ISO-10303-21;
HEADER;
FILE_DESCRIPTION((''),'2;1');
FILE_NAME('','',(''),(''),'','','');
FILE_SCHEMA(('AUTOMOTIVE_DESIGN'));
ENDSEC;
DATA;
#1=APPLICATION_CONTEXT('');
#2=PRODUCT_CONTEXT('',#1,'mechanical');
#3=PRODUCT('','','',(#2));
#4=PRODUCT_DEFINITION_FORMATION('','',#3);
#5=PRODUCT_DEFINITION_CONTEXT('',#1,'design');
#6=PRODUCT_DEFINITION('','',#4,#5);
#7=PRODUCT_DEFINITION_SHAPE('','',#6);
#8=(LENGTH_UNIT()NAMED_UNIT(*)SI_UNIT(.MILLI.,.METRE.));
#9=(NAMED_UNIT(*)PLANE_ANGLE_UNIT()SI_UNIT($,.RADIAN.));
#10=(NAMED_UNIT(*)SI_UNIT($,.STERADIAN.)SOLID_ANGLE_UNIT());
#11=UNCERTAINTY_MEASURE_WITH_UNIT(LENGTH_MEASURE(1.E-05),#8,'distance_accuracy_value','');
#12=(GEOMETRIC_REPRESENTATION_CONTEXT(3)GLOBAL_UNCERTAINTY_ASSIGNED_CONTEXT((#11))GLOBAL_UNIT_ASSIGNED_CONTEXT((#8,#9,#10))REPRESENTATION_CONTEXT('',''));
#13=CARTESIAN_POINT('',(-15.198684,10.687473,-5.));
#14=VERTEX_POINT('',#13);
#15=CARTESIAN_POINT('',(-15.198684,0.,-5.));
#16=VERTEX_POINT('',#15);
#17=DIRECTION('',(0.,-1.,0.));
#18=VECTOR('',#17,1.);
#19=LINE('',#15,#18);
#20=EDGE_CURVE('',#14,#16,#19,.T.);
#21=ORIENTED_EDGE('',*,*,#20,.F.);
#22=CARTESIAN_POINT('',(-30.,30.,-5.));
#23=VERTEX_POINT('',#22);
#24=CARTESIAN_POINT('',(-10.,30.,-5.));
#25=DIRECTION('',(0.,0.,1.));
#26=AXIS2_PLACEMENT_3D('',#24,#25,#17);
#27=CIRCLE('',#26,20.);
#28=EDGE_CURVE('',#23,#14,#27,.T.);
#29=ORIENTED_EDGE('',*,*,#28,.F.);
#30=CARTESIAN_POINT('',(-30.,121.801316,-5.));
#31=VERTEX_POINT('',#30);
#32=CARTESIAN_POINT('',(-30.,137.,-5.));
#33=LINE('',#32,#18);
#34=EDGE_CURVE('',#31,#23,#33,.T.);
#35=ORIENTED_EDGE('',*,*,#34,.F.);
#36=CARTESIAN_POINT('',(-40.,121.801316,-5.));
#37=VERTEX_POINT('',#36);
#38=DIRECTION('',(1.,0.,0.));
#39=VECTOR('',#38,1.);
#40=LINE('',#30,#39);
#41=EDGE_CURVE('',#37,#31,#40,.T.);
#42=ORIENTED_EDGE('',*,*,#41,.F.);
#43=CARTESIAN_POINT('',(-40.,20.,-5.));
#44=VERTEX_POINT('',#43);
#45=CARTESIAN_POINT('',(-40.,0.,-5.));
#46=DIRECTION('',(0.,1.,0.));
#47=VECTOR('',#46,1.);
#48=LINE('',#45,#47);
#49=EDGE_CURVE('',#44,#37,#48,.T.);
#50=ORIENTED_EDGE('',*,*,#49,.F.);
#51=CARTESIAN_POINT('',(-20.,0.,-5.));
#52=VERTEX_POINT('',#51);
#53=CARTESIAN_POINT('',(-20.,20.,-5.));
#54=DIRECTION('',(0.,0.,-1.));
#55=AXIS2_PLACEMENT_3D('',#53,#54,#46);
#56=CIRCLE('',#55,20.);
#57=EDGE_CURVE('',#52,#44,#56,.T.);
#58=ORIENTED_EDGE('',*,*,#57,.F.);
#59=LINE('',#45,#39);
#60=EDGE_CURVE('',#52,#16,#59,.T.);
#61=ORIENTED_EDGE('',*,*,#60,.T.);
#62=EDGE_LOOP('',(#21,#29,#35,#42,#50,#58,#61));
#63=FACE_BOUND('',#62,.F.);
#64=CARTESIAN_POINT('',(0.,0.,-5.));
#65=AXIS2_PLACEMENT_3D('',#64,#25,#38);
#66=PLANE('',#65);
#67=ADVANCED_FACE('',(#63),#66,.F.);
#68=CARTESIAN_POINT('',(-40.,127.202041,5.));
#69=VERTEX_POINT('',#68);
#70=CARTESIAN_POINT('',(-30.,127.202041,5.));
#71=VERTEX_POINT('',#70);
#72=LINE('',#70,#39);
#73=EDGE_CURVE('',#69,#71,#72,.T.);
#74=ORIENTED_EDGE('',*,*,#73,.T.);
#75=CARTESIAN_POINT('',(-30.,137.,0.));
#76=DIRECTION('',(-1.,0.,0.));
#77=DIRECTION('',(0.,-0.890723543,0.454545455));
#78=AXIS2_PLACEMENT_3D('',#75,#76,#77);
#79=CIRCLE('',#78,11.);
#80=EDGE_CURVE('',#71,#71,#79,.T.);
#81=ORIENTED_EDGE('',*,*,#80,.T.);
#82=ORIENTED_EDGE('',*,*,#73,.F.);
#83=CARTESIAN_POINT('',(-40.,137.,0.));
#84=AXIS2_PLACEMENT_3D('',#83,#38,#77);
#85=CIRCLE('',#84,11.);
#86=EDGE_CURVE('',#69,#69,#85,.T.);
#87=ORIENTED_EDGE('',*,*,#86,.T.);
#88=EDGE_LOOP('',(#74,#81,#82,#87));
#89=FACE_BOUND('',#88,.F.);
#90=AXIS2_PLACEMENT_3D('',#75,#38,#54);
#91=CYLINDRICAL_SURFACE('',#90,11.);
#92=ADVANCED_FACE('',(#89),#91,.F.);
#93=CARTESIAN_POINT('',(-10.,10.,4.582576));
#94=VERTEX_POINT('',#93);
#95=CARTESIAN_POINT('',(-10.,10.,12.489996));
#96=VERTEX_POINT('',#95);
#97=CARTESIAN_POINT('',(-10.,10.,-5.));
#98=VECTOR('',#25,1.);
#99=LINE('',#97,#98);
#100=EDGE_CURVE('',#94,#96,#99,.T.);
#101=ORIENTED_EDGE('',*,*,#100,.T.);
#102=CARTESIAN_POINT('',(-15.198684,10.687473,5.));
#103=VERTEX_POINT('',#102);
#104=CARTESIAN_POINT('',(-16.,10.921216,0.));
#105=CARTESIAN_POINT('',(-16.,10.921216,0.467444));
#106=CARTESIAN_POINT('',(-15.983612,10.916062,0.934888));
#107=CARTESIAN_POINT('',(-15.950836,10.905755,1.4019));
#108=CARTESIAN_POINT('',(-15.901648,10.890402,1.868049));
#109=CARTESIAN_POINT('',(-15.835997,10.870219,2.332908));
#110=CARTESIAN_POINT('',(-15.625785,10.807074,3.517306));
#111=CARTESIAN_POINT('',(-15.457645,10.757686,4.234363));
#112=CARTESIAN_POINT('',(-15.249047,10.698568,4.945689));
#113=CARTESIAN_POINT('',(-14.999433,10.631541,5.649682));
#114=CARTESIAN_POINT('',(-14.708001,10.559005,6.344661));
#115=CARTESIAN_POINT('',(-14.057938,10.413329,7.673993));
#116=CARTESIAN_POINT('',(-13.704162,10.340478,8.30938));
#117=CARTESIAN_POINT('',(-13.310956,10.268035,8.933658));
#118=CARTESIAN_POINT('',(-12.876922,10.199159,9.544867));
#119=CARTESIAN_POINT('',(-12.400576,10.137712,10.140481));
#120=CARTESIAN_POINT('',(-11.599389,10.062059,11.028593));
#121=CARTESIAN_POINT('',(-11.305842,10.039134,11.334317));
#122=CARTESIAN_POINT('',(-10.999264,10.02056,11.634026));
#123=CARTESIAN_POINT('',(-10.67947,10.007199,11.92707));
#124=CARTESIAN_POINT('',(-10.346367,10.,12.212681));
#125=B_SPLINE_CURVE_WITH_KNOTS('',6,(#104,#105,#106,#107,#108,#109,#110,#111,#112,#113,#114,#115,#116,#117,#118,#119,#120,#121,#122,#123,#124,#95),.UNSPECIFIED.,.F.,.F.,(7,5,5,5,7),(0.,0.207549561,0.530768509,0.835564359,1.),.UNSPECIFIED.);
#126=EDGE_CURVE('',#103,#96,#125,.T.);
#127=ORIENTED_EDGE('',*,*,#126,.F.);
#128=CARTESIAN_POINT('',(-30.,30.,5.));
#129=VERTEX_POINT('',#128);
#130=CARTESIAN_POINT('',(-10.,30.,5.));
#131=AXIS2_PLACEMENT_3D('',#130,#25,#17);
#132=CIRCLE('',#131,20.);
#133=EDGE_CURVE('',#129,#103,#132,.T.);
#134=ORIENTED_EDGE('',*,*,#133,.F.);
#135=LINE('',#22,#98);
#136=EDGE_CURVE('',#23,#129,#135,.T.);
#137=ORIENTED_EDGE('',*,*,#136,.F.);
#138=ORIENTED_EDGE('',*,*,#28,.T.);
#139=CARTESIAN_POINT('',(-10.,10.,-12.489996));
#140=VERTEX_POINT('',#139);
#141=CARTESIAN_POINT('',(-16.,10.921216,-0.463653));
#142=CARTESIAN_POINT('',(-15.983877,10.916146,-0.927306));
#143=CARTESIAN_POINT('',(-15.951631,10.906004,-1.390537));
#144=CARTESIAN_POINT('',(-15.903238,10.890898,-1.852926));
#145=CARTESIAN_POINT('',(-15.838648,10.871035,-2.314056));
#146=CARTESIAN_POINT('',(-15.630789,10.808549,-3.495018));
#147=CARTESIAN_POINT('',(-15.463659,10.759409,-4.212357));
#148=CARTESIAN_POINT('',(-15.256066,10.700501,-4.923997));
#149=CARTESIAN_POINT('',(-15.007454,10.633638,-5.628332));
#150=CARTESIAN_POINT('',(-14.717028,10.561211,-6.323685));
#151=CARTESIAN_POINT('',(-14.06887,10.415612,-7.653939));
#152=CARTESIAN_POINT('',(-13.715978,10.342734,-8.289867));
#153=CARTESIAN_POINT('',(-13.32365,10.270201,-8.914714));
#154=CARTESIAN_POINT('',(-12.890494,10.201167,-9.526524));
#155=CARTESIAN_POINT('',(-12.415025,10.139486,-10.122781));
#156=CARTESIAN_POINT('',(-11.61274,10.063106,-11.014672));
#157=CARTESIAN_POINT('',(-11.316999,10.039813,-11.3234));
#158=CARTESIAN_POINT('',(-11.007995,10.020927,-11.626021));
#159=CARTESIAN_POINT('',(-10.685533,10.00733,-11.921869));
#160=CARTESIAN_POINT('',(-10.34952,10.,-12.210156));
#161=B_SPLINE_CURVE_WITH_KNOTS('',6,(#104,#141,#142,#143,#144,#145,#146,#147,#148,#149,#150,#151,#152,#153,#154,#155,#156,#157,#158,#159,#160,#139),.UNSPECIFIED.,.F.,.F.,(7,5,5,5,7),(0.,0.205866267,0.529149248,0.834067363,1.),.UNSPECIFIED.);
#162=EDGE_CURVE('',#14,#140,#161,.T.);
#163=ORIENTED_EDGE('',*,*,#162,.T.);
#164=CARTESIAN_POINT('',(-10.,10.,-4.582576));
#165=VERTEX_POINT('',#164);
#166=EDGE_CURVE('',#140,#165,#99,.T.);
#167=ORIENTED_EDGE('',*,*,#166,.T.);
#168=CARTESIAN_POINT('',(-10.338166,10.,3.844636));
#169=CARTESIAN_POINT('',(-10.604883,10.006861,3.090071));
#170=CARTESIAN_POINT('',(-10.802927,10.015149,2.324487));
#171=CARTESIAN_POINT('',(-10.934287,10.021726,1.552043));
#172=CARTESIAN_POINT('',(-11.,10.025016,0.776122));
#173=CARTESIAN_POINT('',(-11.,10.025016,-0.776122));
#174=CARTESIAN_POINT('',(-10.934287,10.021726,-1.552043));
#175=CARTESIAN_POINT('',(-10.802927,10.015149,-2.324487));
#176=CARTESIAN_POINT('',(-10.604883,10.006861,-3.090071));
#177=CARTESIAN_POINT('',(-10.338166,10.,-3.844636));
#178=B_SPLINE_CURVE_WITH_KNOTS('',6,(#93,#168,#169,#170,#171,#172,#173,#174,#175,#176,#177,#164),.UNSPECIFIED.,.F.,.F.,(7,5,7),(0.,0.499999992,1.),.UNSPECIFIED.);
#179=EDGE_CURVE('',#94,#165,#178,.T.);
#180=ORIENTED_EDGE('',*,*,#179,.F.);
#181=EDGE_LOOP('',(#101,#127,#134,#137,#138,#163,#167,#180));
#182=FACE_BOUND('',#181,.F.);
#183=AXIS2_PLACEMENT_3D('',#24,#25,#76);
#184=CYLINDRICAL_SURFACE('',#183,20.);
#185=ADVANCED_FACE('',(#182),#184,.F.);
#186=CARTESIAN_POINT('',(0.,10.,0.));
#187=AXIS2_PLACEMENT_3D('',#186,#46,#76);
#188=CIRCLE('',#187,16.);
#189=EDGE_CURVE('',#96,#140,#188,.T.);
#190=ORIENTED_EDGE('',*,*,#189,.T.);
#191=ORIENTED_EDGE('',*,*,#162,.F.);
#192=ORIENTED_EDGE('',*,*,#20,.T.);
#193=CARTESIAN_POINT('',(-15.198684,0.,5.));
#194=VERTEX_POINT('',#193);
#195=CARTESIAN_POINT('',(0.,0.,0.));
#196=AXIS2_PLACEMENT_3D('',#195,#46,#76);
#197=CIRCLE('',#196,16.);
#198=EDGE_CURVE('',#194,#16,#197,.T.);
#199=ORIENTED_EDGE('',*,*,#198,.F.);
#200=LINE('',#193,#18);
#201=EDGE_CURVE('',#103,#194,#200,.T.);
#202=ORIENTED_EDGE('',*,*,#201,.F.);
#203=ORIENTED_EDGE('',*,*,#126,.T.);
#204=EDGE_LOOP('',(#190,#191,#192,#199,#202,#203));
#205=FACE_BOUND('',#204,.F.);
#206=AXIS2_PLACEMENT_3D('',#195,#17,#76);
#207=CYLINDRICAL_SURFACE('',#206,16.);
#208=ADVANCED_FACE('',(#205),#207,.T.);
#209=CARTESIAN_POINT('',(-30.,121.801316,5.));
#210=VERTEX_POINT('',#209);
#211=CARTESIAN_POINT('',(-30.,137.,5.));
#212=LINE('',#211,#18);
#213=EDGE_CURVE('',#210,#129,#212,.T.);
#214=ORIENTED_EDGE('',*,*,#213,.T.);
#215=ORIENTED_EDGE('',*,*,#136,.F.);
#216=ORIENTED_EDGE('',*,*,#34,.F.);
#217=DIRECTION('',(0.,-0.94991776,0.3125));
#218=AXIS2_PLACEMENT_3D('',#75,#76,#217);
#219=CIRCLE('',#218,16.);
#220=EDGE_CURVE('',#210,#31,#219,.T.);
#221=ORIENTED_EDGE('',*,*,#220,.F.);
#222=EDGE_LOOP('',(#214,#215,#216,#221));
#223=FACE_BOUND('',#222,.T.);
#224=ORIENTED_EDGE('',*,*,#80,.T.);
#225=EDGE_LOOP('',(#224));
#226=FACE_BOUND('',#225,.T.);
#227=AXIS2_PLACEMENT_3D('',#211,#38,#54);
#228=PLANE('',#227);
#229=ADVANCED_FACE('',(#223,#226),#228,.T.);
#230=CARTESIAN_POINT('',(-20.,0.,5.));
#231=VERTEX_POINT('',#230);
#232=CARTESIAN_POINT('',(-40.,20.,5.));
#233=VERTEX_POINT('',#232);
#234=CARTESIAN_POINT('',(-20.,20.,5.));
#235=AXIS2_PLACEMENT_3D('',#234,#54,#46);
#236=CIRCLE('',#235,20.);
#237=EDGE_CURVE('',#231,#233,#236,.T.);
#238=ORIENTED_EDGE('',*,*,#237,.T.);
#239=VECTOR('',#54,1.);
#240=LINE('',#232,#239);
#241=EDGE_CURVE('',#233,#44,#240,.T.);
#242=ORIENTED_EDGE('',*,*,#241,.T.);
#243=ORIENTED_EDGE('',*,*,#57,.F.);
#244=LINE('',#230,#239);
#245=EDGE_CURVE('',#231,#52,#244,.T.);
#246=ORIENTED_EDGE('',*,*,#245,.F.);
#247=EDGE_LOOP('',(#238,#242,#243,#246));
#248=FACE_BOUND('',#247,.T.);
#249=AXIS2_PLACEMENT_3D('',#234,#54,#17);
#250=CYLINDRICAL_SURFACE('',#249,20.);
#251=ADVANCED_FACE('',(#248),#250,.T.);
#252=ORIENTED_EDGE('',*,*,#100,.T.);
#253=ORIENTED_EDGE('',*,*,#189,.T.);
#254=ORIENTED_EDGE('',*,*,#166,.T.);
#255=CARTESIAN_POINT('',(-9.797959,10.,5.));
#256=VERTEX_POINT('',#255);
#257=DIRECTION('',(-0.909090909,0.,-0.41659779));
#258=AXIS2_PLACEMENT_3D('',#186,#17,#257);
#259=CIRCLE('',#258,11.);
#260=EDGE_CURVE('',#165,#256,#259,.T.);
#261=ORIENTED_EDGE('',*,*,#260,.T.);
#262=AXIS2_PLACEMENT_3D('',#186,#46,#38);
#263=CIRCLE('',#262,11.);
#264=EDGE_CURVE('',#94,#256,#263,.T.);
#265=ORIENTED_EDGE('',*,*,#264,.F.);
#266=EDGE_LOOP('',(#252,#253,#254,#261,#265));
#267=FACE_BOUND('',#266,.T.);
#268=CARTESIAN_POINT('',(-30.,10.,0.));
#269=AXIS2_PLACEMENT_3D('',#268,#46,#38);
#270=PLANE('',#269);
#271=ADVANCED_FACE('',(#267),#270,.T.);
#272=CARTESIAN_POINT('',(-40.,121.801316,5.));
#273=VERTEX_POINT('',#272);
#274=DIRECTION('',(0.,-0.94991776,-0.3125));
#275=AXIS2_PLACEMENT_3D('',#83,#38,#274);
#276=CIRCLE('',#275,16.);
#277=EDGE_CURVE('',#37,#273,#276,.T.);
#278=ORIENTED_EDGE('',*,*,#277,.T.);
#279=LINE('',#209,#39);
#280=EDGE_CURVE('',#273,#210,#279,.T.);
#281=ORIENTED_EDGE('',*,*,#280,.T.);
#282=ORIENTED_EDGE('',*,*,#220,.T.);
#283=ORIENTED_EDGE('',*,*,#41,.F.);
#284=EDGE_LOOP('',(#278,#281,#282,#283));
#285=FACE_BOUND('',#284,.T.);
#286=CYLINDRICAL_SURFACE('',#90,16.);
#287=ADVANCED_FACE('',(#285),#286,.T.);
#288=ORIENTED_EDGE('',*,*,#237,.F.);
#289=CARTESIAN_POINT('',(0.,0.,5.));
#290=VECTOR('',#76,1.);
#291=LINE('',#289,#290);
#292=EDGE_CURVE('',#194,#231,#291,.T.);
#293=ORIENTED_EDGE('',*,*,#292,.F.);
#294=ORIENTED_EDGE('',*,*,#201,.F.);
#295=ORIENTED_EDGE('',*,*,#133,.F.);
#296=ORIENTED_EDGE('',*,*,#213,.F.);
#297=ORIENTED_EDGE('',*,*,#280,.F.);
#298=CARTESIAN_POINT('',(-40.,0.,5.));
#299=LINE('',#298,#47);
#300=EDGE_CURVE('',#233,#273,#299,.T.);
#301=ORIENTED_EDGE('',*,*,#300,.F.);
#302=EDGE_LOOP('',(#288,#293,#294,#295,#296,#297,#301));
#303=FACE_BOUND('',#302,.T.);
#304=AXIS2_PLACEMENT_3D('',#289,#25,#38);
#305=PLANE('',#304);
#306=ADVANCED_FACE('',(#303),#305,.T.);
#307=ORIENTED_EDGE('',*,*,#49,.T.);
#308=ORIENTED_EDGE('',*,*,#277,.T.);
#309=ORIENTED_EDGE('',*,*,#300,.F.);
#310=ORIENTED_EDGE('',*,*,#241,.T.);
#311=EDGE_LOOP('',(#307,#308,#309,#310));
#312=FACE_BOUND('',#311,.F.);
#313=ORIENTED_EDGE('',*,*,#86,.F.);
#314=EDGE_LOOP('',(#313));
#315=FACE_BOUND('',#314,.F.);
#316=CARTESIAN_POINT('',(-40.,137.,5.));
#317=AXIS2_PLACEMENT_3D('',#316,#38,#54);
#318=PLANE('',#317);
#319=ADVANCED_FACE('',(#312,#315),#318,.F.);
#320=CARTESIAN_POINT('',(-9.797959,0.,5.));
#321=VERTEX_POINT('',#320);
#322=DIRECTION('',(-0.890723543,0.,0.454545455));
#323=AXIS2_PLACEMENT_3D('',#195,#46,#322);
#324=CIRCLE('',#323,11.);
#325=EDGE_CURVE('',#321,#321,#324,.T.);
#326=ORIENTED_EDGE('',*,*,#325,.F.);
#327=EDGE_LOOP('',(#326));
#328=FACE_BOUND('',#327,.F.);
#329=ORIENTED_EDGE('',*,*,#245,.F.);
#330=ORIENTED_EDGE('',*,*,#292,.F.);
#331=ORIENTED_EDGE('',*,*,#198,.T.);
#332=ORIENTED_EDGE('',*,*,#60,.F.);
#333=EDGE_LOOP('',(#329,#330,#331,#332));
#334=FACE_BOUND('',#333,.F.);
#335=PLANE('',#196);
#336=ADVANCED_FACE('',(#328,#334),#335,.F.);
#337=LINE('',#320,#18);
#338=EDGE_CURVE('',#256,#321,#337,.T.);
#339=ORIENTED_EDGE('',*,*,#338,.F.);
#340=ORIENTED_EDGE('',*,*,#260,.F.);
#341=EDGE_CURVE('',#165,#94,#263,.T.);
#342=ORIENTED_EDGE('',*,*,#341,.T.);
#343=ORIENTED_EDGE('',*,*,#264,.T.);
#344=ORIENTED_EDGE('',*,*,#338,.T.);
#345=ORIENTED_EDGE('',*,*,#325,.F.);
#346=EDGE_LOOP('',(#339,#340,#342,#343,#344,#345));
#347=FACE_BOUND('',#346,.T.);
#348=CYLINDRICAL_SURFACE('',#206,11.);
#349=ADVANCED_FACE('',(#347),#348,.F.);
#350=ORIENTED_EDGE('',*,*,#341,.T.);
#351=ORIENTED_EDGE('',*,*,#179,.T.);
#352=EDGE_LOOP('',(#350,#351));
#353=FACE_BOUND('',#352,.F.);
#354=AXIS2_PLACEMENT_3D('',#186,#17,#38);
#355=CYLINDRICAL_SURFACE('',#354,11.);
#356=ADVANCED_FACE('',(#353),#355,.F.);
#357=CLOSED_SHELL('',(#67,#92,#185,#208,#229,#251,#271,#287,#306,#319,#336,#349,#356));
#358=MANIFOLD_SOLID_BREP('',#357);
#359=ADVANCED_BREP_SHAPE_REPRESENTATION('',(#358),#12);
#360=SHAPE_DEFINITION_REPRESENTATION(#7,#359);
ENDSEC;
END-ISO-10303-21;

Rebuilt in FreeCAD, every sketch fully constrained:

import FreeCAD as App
import Part
import Sketcher

V = App.Vector


def edges_at(feature, points):
    """Names of the edges that pass closest to the given points."""
    edges = feature.Shape.Edges
    near = lambda p: min(range(len(edges)), key=lambda i: edges[i].distToShape(Part.Vertex(*p))[0])
    return sorted({f"Edge{near(p) + 1}" for p in points})


def add_polygon(sketch, points):
    """Adds a closed chain of lines whose ends are joined by coincident constraints."""
    first, n = sketch.GeometryCount, len(points)
    for a, b in zip(points, points[1:] + points[:1]):
        sketch.addGeometry(Part.LineSegment(App.Vector(*a, 0), App.Vector(*b, 0)), False)
    for i in range(n):
        sketch.addConstraint(Sketcher.Constraint("Coincident", first + i, 2, first + (i + 1) % n, 1))

doc = App.newDocument("Part")
params = doc.addObject("Spreadsheet::Sheet", "Params")
for row, (alias, value) in enumerate([
    ("sketch1_diameter", "22 mm"),
    ("sketch1_diameter2", "32 mm"),
    ("pad1_length", "10 mm"),
    ("sketch2_width", "30 mm"),
    ("sketch2_width2", "10 mm"),
    ("sketch2_height", "137 mm"),
    ("pad2_length", "10 mm"),
    ("fillet_radius", "20 mm"),
    ("sketch3_diameter", "32 mm"),
    ("sketch3_diameter2", "22 mm"),
    ("pad3_length", "10 mm"),
    ("sketch4_diameter", "22 mm"),
    ("pocket1_length", "10 mm"),
    ("sketch5_diameter", "22 mm"),
    ("pocket2_length", "10 mm"),
    ("sketch6_diameter", "22 mm"),
    ("pocket3_length", "10 mm"),
], start=1):
    params.set(f"A{row}", alias)
    params.set(f"B{row}", "=" + value)
    params.setAlias(f"B{row}", alias)

body = doc.addObject("PartDesign::Body", "Body")

# Sketch on XZ plane
sketch1 = doc.addObject("Sketcher::SketchObject", "Sketch")
body.addObject(sketch1)
sketch1.AttachmentSupport = (doc.XZ_Plane, [""])
sketch1.MapMode = "FlatFace"
sketch1.addGeometry([
    Part.Circle(V(0, 0, 0), V(0, 0, 1), 16),
    Part.Circle(V(0, 0, 0), V(0, 0, 1), 11),
], False)
sketch1.addConstraint([
    Sketcher.Constraint("Coincident", 0, 3, -1, 1),
    Sketcher.Constraint("Coincident", 1, 3, -1, 1),
    Sketcher.Constraint("Diameter", 1, 22.0),
    Sketcher.Constraint("Diameter", 0, 32.0),
])
sketch1.setExpression("Constraints[2]", "Params.sketch1_diameter")
sketch1.setExpression("Constraints[3]", "Params.sketch1_diameter2")
pad1 = doc.addObject("PartDesign::Pad", "Pad")
body.addObject(pad1)
pad1.Profile = sketch1
pad1.setExpression("Length", "Params.pad1_length")
pad1.Reversed = True

# Sketch on XY plane
sketch2 = doc.addObject("Sketcher::SketchObject", "Sketch001")
body.addObject(sketch2)
sketch2.AttachmentSupport = (doc.XY_Plane, [""])
sketch2.MapMode = "FlatFace"
add_polygon(sketch2, [(0, 0), (0, 10), (-30, 10), (-30, 137), (-40, 137), (-40, 0)])  # lines 0-5
sketch2.addConstraint([
    Sketcher.Constraint("Vertical", 0),
    Sketcher.Constraint("Horizontal", 1),
    Sketcher.Constraint("Vertical", 2),
    Sketcher.Constraint("Horizontal", 3),
    Sketcher.Constraint("Vertical", 4),
    Sketcher.Constraint("Horizontal", 5),
    Sketcher.Constraint("Coincident", 5, 2, -1, 1),
    Sketcher.Constraint("Equal", 3, 0),
    Sketcher.Constraint("DistanceX", 1, 2, 1, 1, 30.0),
    Sketcher.Constraint("DistanceX", 3, 2, 3, 1, 10.0),
    Sketcher.Constraint("DistanceY", 4, 2, 4, 1, 137.0),
])
sketch2.setExpression("Constraints[14]", "Params.sketch2_width")
sketch2.setExpression("Constraints[15]", "Params.sketch2_width2")
sketch2.setExpression("Constraints[16]", "Params.sketch2_height")
pad2 = doc.addObject("PartDesign::Pad", "Pad001")
body.addObject(pad2)
pad2.Profile = sketch2
pad2.setExpression("Length", "Params.pad2_length")
pad2.Midplane = True
doc.recompute()

fillet = doc.addObject("PartDesign::Fillet", "Fillet")
body.addObject(fillet)
fillet.Base = (pad2, edges_at(pad2, [(-40, 0, 0), (-30, 10, 0)]))
fillet.setExpression("Radius", "Params.fillet_radius")

# Sketch on YZ plane
sketch3 = doc.addObject("Sketcher::SketchObject", "Sketch002")
body.addObject(sketch3)
sketch3.AttachmentSupport = (doc.YZ_Plane, [""])
sketch3.MapMode = "FlatFace"
sketch3.AttachmentOffset = App.Placement(V(0, 0, -30), App.Rotation())
sketch3.addGeometry([
    Part.Circle(V(137, 0, 0), V(0, 0, 1), 16),
    Part.Circle(V(137, 0, 0), V(0, 0, 1), 11),
], False)
sketch3.addConstraint([
    Sketcher.Constraint("Coincident", 1, 3, 0, 3),
    Sketcher.Constraint("PointOnObject", 0, 3, -1),
    Sketcher.Constraint("Diameter", 0, 32.0),
    Sketcher.Constraint("Diameter", 1, 22.0),
    Sketcher.Constraint("DistanceX", -1, 1, 0, 3, 137.0),
])
sketch3.setExpression("Constraints[2]", "Params.sketch3_diameter")
sketch3.setExpression("Constraints[3]", "Params.sketch3_diameter2")
pad3 = doc.addObject("PartDesign::Pad", "Pad002")
body.addObject(pad3)
pad3.Profile = sketch3
pad3.setExpression("Length", "Params.pad3_length")
pad3.Reversed = True

# Sketch on XZ plane
sketch4 = doc.addObject("Sketcher::SketchObject", "Sketch003")
body.addObject(sketch4)
sketch4.AttachmentSupport = (doc.XZ_Plane, [""])
sketch4.MapMode = "FlatFace"
sketch4.AttachmentOffset = App.Placement(V(0, 0, -10), App.Rotation())
sketch4.addGeometry(Part.Circle(V(0, 0, 0), V(0, 0, 1), 11), False)
sketch4.addConstraint([
    Sketcher.Constraint("Coincident", 0, 3, -1, 1),
    Sketcher.Constraint("Diameter", 0, 22.0),
])
sketch4.setExpression("Constraints[1]", "Params.sketch4_diameter")
pocket1 = doc.addObject("PartDesign::Pocket", "Pocket")
body.addObject(pocket1)
pocket1.Profile = sketch4
pocket1.setExpression("Length", "Params.pocket1_length")
pocket1.Reversed = True

# Sketch on YZ plane
sketch5 = doc.addObject("Sketcher::SketchObject", "Sketch004")
body.addObject(sketch5)
sketch5.AttachmentSupport = (doc.YZ_Plane, [""])
sketch5.MapMode = "FlatFace"
sketch5.AttachmentOffset = App.Placement(V(0, 0, -30), App.Rotation())
sketch5.addGeometry(Part.Circle(V(137, 0, 0), V(0, 0, 1), 11), False)
sketch5.addConstraint([
    Sketcher.Constraint("PointOnObject", 0, 3, -1),
    Sketcher.Constraint("Diameter", 0, 22.0),
    Sketcher.Constraint("DistanceX", -1, 1, 0, 3, 137.0),
])
sketch5.setExpression("Constraints[1]", "Params.sketch5_diameter")
pocket2 = doc.addObject("PartDesign::Pocket", "Pocket001")
body.addObject(pocket2)
pocket2.Profile = sketch5
pocket2.setExpression("Length", "Params.pocket2_length")

# Sketch on XZ plane
sketch6 = doc.addObject("Sketcher::SketchObject", "Sketch005")
body.addObject(sketch6)
sketch6.AttachmentSupport = (doc.XZ_Plane, [""])
sketch6.MapMode = "FlatFace"
sketch6.AttachmentOffset = App.Placement(V(0, 0, -10), App.Rotation())
sketch6.addGeometry(Part.Circle(V(0, 0, 0), V(0, 0, 1), 11), False)
sketch6.addConstraint([
    Sketcher.Constraint("Coincident", 0, 3, -1, 1),
    Sketcher.Constraint("Diameter", 0, 22.0),
])
sketch6.setExpression("Constraints[1]", "Params.sketch6_diameter")
pocket3 = doc.addObject("PartDesign::Pocket", "Pocket002")
body.addObject(pocket3)
pocket3.Profile = sketch6
pocket3.setExpression("Length", "Params.pocket3_length")

doc.recompute()
